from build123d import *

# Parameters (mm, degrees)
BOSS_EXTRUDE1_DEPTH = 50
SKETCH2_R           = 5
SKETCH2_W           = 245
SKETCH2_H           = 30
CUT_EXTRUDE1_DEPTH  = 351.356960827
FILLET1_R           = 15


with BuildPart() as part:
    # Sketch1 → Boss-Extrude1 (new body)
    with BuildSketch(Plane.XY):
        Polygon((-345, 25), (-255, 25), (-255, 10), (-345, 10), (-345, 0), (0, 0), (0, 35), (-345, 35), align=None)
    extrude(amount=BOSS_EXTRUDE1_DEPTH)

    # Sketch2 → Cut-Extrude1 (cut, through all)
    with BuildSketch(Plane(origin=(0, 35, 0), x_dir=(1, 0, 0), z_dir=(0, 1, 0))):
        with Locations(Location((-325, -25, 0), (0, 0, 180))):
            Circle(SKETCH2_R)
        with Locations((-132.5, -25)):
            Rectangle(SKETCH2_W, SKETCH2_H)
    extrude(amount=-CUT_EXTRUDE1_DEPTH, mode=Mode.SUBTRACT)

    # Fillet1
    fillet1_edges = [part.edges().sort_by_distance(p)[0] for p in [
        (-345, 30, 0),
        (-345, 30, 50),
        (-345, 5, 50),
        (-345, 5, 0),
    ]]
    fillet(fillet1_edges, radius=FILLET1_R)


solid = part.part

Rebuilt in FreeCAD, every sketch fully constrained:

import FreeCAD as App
import Part
import Sketcher
Q = App.Units.Quantity


def edges_at(feature, points):
    """Names of the edges that pass closest to the given points."""
    edges = feature.Shape.Edges
    near = lambda p: min(range(len(edges)), key=lambda i: edges[i].distToShape(Part.Vertex(*p))[0])
    return sorted({f"Edge{near(p) + 1}" for p in points})


def add_polygon(sketch, points):
    """Adds a closed chain of lines whose ends are joined by coincident constraints."""
    first, n = sketch.GeometryCount, len(points)
    for a, b in zip(points, points[1:] + points[:1]):
        sketch.addGeometry(Part.LineSegment(App.Vector(*a, 0), App.Vector(*b, 0)), False)
    for i in range(n):
        sketch.addConstraint(Sketcher.Constraint("Coincident", first + i, 2, first + (i + 1) % n, 1))

doc = App.newDocument("Part")
params = doc.addObject("Spreadsheet::Sheet", "Params")
for row, (alias, value) in enumerate([
    ("sketch1_width", "90 mm"),
    ("sketch1_width2", "345 mm"),
    ("sketch1_height", "15 mm"),
    ("sketch1_height2", "10 mm"),
    ("pad1_length", "50 mm"),
    ("sketch2_diameter", "10 mm"),
    ("sketch2_width", "245 mm"),
    ("sketch2_height", "30 mm"),
    ("fillet_radius", "15 mm"),
], start=1):
    params.set(f"A{row}", alias)
    params.set(f"B{row}", "=" + value)
    params.setAlias(f"B{row}", alias)

body = doc.addObject("PartDesign::Body", "Body")

sketch1 = doc.addObject("Sketcher::SketchObject", "Sketch")
body.addObject(sketch1)
sketch1.AttachmentSupport = (doc.XY_Plane, [""])
sketch1.MapMode = "FlatFace"
add_polygon(sketch1, [(-345, 25), (-255, 25), (-255, 10), (-345, 10), (-345, 0), (0, 0), (0, 35), (-345, 35)])
sketch1.addConstraint(Sketcher.Constraint("Horizontal", 0))
sketch1.addConstraint(Sketcher.Constraint("Vertical", 1))
sketch1.addConstraint(Sketcher.Constraint("Horizontal", 2))
sketch1.addConstraint(Sketcher.Constraint("Vertical", 3))
sketch1.addConstraint(Sketcher.Constraint("Horizontal", 4))
sketch1.addConstraint(Sketcher.Constraint("Vertical", 5))
sketch1.addConstraint(Sketcher.Constraint("Horizontal", 6))
sketch1.addConstraint(Sketcher.Constraint("Vertical", 7))
sketch1.addConstraint(Sketcher.Constraint("Coincident", 4, 2, -1, 1))
sketch1.addConstraint(Sketcher.Constraint("Vertical", 3, 2, 6, 2))
sketch1.addConstraint(Sketcher.Constraint("Equal", 3, 7))
sketch1.addConstraint(Sketcher.Constraint("DistanceX", 0, 1, 0, 2, Q("90 mm")))
sketch1.addConstraint(Sketcher.Constraint("DistanceX", 4, 1, 4, 2, Q("345 mm")))
sketch1.addConstraint(Sketcher.Constraint("DistanceY", 1, 2, 1, 1, Q("15 mm")))
sketch1.addConstraint(Sketcher.Constraint("DistanceY", 3, 2, 3, 1, Q("10 mm")))
sketch1.setExpression("Constraints[19]", "Params.sketch1_width")
sketch1.setExpression("Constraints[20]", "Params.sketch1_width2")
sketch1.setExpression("Constraints[21]", "Params.sketch1_height")
sketch1.setExpression("Constraints[22]", "Params.sketch1_height2")
pad1 = doc.addObject("PartDesign::Pad", "Pad")
body.addObject(pad1)
pad1.Profile = sketch1
pad1.setExpression("Length", "Params.pad1_length")

sketch2 = doc.addObject("Sketcher::SketchObject", "Sketch001")
body.addObject(sketch2)
sketch2.AttachmentSupport = (doc.XZ_Plane, [""])
sketch2.MapMode = "FlatFace"
sketch2.AttachmentOffset = App.Placement(App.Vector(0, 0, -35), App.Rotation())
sketch2.addGeometry(Part.Circle(App.Vector(-325, 25, 0), App.Vector(0, 0, 1), 5), False)
add_polygon(sketch2, [(-255, 10), (-255, 40), (-10, 40), (-10, 10)])
sketch2.addConstraint(Sketcher.Constraint("Vertical", 1))
sketch2.addConstraint(Sketcher.Constraint("Horizontal", 2))
sketch2.addConstraint(Sketcher.Constraint("Vertical", 3))
sketch2.addConstraint(Sketcher.Constraint("Horizontal", 4))
sketch2.addConstraint(Sketcher.Constraint("Diameter", 0, Q("10 mm")))
sketch2.addConstraint(Sketcher.Constraint("DistanceX", 2, 1, 2, 2, Q("245 mm")))
sketch2.addConstraint(Sketcher.Constraint("DistanceY", 1, 1, 1, 2, Q("30 mm")))
sketch2.addConstraint(Sketcher.Constraint("DistanceX", 0, 3, -1, 1, Q("325 mm")))
sketch2.addConstraint(Sketcher.Constraint("DistanceY", -1, 1, 0, 3, Q("25 mm")))
sketch2.addConstraint(Sketcher.Constraint("DistanceX", 1, 2, -1, 1, Q("255 mm")))
sketch2.addConstraint(Sketcher.Constraint("DistanceY", -1, 1, 1, 2, Q("40 mm")))
sketch2.setExpression("Constraints[8]", "Params.sketch2_diameter")
sketch2.setExpression("Constraints[9]", "Params.sketch2_width")
sketch2.setExpression("Constraints[10]", "Params.sketch2_height")
pocket1 = doc.addObject("PartDesign::Pocket", "Pocket")
body.addObject(pocket1)
pocket1.Profile = sketch2
pocket1.Type = "ThroughAll"
pocket1.Reversed = True
doc.recompute()

fillet = doc.addObject("PartDesign::Fillet", "Fillet")
body.addObject(fillet)
fillet.Base = (pocket1, edges_at(pocket1, [
    (-345, 30, 0),
    (-345, 30, 50),
    (-345, 5, 50),
    (-345, 5, 0),
]))
fillet.setExpression("Radius", "Params.fillet_radius")

doc.recompute()
